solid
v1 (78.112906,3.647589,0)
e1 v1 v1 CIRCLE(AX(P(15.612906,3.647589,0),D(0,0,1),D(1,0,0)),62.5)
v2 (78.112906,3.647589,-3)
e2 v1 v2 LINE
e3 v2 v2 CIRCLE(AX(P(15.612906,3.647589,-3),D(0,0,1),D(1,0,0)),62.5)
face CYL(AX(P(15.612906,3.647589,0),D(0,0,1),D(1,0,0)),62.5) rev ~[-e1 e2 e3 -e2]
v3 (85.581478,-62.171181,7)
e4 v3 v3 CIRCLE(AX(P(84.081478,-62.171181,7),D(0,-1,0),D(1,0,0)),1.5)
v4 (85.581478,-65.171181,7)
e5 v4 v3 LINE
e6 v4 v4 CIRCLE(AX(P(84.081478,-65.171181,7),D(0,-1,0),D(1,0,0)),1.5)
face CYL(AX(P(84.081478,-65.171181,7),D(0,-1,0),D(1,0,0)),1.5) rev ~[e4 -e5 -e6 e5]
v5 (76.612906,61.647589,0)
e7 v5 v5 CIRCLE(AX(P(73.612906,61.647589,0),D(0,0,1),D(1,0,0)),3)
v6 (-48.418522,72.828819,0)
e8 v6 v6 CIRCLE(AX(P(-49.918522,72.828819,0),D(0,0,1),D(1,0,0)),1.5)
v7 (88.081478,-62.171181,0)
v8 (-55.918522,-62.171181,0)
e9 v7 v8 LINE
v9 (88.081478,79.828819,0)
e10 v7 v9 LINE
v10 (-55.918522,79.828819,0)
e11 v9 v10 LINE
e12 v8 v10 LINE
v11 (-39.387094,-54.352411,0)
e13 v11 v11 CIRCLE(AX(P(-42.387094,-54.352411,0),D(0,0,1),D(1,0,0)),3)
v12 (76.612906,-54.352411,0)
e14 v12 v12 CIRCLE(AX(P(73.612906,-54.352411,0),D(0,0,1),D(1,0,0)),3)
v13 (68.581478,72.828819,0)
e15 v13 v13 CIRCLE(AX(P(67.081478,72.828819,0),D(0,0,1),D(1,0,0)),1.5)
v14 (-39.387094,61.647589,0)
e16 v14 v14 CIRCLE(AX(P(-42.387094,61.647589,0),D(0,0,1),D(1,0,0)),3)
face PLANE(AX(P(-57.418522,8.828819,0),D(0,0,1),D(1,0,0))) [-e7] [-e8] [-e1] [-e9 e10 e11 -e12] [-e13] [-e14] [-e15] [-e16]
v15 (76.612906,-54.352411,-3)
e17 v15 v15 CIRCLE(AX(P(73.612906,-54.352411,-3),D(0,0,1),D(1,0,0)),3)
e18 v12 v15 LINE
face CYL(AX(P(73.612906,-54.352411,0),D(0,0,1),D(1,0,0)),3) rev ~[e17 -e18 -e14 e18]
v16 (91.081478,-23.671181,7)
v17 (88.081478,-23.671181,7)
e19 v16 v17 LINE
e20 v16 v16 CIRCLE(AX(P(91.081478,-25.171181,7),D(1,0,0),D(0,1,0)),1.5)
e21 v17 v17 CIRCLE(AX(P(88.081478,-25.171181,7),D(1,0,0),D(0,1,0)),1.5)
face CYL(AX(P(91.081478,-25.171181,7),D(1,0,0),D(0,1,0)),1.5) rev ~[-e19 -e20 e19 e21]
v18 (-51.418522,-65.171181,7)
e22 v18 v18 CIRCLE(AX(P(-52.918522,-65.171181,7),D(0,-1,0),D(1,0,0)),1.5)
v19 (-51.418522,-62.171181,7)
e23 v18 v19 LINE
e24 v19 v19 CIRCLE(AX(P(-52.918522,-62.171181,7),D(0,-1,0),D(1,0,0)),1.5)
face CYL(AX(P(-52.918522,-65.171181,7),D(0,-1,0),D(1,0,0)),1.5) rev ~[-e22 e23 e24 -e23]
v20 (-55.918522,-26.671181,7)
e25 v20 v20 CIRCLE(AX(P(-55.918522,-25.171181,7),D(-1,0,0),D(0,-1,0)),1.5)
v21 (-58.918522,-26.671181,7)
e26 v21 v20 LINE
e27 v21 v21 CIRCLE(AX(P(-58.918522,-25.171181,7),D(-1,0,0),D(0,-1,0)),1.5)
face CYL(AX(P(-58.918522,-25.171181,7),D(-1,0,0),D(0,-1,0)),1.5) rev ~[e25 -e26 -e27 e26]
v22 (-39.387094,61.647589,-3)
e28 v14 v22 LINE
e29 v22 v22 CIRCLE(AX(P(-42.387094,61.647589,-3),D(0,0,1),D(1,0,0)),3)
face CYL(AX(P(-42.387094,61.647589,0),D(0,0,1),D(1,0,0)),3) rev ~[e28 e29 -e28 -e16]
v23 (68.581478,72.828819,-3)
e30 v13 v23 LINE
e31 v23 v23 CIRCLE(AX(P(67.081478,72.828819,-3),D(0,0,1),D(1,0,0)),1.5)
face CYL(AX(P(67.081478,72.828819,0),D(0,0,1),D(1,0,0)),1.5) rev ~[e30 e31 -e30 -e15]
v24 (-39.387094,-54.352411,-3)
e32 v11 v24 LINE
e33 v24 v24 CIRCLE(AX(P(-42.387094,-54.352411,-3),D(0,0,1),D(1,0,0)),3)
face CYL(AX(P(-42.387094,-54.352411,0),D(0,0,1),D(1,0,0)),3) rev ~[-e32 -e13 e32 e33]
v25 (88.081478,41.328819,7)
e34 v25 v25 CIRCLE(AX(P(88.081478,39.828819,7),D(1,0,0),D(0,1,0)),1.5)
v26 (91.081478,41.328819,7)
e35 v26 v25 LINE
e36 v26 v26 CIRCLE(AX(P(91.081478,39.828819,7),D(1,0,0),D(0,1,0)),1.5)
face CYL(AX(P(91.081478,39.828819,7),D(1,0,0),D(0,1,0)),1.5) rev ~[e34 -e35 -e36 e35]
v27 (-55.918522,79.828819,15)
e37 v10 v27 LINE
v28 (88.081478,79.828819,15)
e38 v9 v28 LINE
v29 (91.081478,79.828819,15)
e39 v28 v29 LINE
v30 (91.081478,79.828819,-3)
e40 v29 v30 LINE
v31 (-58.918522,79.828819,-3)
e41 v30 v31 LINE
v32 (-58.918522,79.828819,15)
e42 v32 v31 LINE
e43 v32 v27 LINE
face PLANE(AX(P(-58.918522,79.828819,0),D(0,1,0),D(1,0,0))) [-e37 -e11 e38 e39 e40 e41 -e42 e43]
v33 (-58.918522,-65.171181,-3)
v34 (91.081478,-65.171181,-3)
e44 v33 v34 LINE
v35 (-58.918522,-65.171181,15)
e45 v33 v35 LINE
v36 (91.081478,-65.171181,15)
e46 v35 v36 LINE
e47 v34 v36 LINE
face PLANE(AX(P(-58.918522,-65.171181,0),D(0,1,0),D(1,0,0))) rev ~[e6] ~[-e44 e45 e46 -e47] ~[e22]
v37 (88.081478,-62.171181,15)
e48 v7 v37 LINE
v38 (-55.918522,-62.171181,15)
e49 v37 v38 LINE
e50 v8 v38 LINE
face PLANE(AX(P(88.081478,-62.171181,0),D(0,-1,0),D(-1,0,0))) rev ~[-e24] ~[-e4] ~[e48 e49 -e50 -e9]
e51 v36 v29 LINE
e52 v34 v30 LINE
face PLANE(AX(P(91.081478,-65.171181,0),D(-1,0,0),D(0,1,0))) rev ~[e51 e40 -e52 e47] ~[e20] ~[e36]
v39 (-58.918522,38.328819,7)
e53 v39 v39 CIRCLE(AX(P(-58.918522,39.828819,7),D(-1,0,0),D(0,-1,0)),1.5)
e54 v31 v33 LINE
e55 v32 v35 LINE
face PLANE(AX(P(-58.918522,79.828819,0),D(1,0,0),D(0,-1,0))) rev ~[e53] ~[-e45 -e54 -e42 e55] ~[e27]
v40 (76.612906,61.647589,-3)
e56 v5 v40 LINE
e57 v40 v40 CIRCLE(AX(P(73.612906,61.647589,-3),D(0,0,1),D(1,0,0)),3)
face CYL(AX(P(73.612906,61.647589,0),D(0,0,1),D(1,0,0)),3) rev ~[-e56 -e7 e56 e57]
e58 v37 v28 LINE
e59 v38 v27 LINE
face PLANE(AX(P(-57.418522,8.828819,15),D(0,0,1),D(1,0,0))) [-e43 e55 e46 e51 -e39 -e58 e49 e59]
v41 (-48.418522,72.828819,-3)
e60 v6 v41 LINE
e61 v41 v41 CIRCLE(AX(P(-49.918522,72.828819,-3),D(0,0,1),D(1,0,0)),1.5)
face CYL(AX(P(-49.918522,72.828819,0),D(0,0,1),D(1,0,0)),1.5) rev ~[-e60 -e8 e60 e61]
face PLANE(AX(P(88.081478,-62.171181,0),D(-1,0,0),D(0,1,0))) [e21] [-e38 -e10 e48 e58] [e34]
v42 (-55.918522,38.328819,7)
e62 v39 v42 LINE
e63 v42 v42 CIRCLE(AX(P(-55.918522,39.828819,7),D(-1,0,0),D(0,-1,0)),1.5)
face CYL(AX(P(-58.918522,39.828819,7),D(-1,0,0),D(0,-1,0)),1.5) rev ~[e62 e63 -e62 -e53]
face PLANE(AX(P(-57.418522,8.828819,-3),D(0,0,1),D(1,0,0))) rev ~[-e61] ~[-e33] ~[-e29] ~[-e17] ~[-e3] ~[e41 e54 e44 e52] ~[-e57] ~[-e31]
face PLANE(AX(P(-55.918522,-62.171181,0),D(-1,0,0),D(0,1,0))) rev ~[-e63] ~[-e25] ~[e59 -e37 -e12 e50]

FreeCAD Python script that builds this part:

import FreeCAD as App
import Part
import Sketcher
from FreeCAD import Vector
Q = App.Units.Quantity

doc = App.newDocument("Part")
body = doc.addObject("PartDesign::Body", "Body")

# Sketch on XY plane
sketch1 = body.newObject("Sketcher::SketchObject", "Sketch")
sketch1.AttachmentSupport = (doc.getObject("XY_Plane"), [""])
sketch1.MapMode = "FlatFace"
sketch1.addGeometry(Part.LineSegment(Vector(-58.9, 79.8, 0), Vector(-58.9, -65.2, 0)), False)
sketch1.addGeometry(Part.LineSegment(Vector(-58.9, -65.2, 0), Vector(91.1, -65.2, 0)), False)
sketch1.addGeometry(Part.LineSegment(Vector(91.1, -65.2, 0), Vector(91.1, 79.8, 0)), False)
sketch1.addGeometry(Part.LineSegment(Vector(91.1, 79.8, 0), Vector(-58.9, 79.8, 0)), False)
sketch1.addGeometry(Part.Circle(Vector(-42.4, -54.4, 0), Vector(0, 0, 1), 3), False)
sketch1.addGeometry(Part.Circle(Vector(73.6, -54.4, 0), Vector(0, 0, 1), 3), False)
sketch1.addGeometry(Part.Circle(Vector(15.6, 3.6, 0), Vector(0, 0, 1), 62.5), False)
sketch1.addGeometry(Part.Circle(Vector(-42.4, 61.6, 0), Vector(0, 0, 1), 3), False)
sketch1.addGeometry(Part.Circle(Vector(-49.9, 72.8, 0), Vector(0, 0, 1), 1.5), False)
sketch1.addGeometry(Part.Circle(Vector(73.6, 61.6, 0), Vector(0, 0, 1), 3), False)
sketch1.addGeometry(Part.Circle(Vector(67.1, 72.8, 0), Vector(0, 0, 1), 1.5), False)
sketch1.addConstraint(Sketcher.Constraint("Coincident", 0, 2, 1, 1))
sketch1.addConstraint(Sketcher.Constraint("Coincident", 1, 2, 2, 1))
sketch1.addConstraint(Sketcher.Constraint("Coincident", 2, 2, 3, 1))
sketch1.addConstraint(Sketcher.Constraint("Coincident", 3, 2, 0, 1))
sketch1.addConstraint(Sketcher.Constraint("Vertical", 0))
sketch1.addConstraint(Sketcher.Constraint("Horizontal", 1))
sketch1.addConstraint(Sketcher.Constraint("Vertical", 2))
sketch1.addConstraint(Sketcher.Constraint("Horizontal", 3))
sketch1.addConstraint(Sketcher.Constraint("Equal", 4, 5))
sketch1.addConstraint(Sketcher.Constraint("Equal", 5, 7))
sketch1.addConstraint(Sketcher.Constraint("Equal", 7, 9))
sketch1.addConstraint(Sketcher.Constraint("Equal", 8, 10))
sketch1.addConstraint(Sketcher.Constraint("Horizontal", 4, 3, 5, 3))
sketch1.addConstraint(Sketcher.Constraint("Horizontal", 7, 3, 9, 3))
sketch1.addConstraint(Sketcher.Constraint("Horizontal", 8, 3, 10, 3))
sketch1.addConstraint(Sketcher.Constraint("Vertical", 4, 3, 7, 3))
sketch1.addConstraint(Sketcher.Constraint("Vertical", 5, 3, 9, 3))
sketch1.addConstraint(Sketcher.Constraint("Diameter", 4, Q("6 mm")))
sketch1.addConstraint(Sketcher.Constraint("Diameter", 6, Q("125 mm")))
sketch1.addConstraint(Sketcher.Constraint("Diameter", 8, Q("3 mm")))
sketch1.addConstraint(Sketcher.Constraint("DistanceX", 1, 1, 1, 2, Q("150 mm")))
sketch1.addConstraint(Sketcher.Constraint("DistanceY", 0, 2, 0, 1, Q("145 mm")))
sketch1.addConstraint(Sketcher.Constraint("DistanceX", 4, 3, 5, 3, Q("116 mm")))
sketch1.addConstraint(Sketcher.Constraint("DistanceX", 4, 3, 6, 3, Q("58 mm")))
sketch1.addConstraint(Sketcher.Constraint("DistanceY", 4, 3, 6, 3, Q("58 mm")))
sketch1.addConstraint(Sketcher.Constraint("DistanceY", 6, 3, 7, 3, Q("58 mm")))
sketch1.addConstraint(Sketcher.Constraint("DistanceX", 8, 3, 10, 3, Q("117 mm")))
sketch1.addConstraint(Sketcher.Constraint("DistanceX", 0, 2, 8, 3, Q("9 mm")))
sketch1.addConstraint(Sketcher.Constraint("DistanceY", 0, 2, 8, 3, Q("138 mm")))
sketch1.addConstraint(Sketcher.Constraint("DistanceY", 4, 3, -1, 1, Q("54.352411 mm")))
sketch1.addConstraint(Sketcher.Constraint("DistanceY", -1, 1, 8, 3, Q("72.828819 mm")))
sketch1.addConstraint(Sketcher.Constraint("DistanceX", 8, 3, 7, 3, Q("7.531428 mm")))
sketch1.addConstraint(Sketcher.Constraint("DistanceX", 4, 3, -1, 1, Q("42.387094 mm")))
pad1 = body.newObject("PartDesign::Pad", "Pad")
pad1.Profile = sketch1
pad1.Length = 3
pad1.Reversed = True

# Sketch on XY plane
sketch2 = body.newObject("Sketcher::SketchObject", "Sketch001")
sketch2.AttachmentSupport = (doc.getObject("XY_Plane"), [""])
sketch2.MapMode = "FlatFace"
sketch2.addGeometry(Part.LineSegment(Vector(-58.9, 79.8, 0), Vector(-58.9, -65.2, 0)), False)
sketch2.addGeometry(Part.LineSegment(Vector(-58.9, -65.2, 0), Vector(91.1, -65.2, 0)), False)
sketch2.addGeometry(Part.LineSegment(Vector(91.1, -65.2, 0), Vector(91.1, 79.8, 0)), False)
sketch2.addGeometry(Part.LineSegment(Vector(91.1, 79.8, 0), Vector(88.1, 79.8, 0)), False)
sketch2.addGeometry(Part.LineSegment(Vector(88.1, 79.8, 0), Vector(88.1, -62.2, 0)), False)
sketch2.addGeometry(Part.LineSegment(Vector(88.1, -62.2, 0), Vector(-55.9, -62.2, 0)), False)
sketch2.addGeometry(Part.LineSegment(Vector(-55.9, -62.2, 0), Vector(-55.9, 79.8, 0)), False)
sketch2.addGeometry(Part.LineSegment(Vector(-55.9, 79.8, 0), Vector(-58.9, 79.8, 0)), False)
sketch2.addConstraint(Sketcher.Constraint("Coincident", 0, 2, 1, 1))
sketch2.addConstraint(Sketcher.Constraint("Coincident", 1, 2, 2, 1))
sketch2.addConstraint(Sketcher.Constraint("Coincident", 2, 2, 3, 1))
sketch2.addConstraint(Sketcher.Constraint("Coincident", 3, 2, 4, 1))
sketch2.addConstraint(Sketcher.Constraint("Coincident", 4, 2, 5, 1))
sketch2.addConstraint(Sketcher.Constraint("Coincident", 5, 2, 6, 1))
sketch2.addConstraint(Sketcher.Constraint("Coincident", 6, 2, 7, 1))
sketch2.addConstraint(Sketcher.Constraint("Coincident", 7, 2, 0, 1))
sketch2.addConstraint(Sketcher.Constraint("Vertical", 0))
sketch2.addConstraint(Sketcher.Constraint("Horizontal", 1))
sketch2.addConstraint(Sketcher.Constraint("Vertical", 2))
sketch2.addConstraint(Sketcher.Constraint("Horizontal", 3))
sketch2.addConstraint(Sketcher.Constraint("Vertical", 4))
sketch2.addConstraint(Sketcher.Constraint("Horizontal", 5))
sketch2.addConstraint(Sketcher.Constraint("Vertical", 6))
sketch2.addConstraint(Sketcher.Constraint("Horizontal", 7))
sketch2.addConstraint(Sketcher.Constraint("Horizontal", 3, 2, 6, 2))
sketch2.addConstraint(Sketcher.Constraint("Equal", 3, 7))
sketch2.addConstraint(Sketcher.Constraint("DistanceX", 1, 1, 1, 2, Q("150 mm")))
sketch2.addConstraint(Sketcher.Constraint("DistanceX", 3, 2, 3, 1, Q("3 mm")))
sketch2.addConstraint(Sketcher.Constraint("DistanceY", 0, 2, 0, 1, Q("145 mm")))
sketch2.addConstraint(Sketcher.Constraint("DistanceY", 4, 2, 4, 1, Q("142 mm")))
sketch2.addConstraint(Sketcher.Constraint("DistanceY", 0, 2, -1, 1, Q("65.171181 mm")))
sketch2.addConstraint(Sketcher.Constraint("DistanceX", 0, 2, -1, 1, Q("58.918522 mm")))
pad2 = body.newObject("PartDesign::Pad", "Pad001")
pad2.Profile = sketch2
pad2.Length = 15

# Sketch on YZ plane
sketch3 = body.newObject("Sketcher::SketchObject", "Sketch002")
sketch3.AttachmentSupport = (doc.getObject("YZ_Plane"), [""])
sketch3.MapMode = "FlatFace"
sketch3.AttachmentOffset = App.Placement(Vector(0, 0, -58.918522), App.Rotation())
sketch3.addGeometry(Part.Circle(Vector(-25.2, 7, 0), Vector(0, 0, 1), 1.5), False)
sketch3.addGeometry(Part.Circle(Vector(39.8, 7, 0), Vector(0, 0, 1), 1.5), False)
sketch3.addConstraint(Sketcher.Constraint("Equal", 0, 1))
sketch3.addConstraint(Sketcher.Constraint("Horizontal", 0, 3, 1, 3))
sketch3.addConstraint(Sketcher.Constraint("Diameter", 0, Q("3 mm")))
sketch3.addConstraint(Sketcher.Constraint("DistanceY", -1, 1, 0, 3, Q("7 mm")))
sketch3.addConstraint(Sketcher.Constraint("DistanceX", 0, 3, 1, 3, Q("65 mm")))
sketch3.addConstraint(Sketcher.Constraint("DistanceX", 0, 3, -1, 1, Q("25.171181 mm")))
pocket1 = body.newObject("PartDesign::Pocket", "Pocket")
pocket1.Profile = sketch3
pocket1.Length = 3
pocket1.Reversed = True

# Sketch on XZ plane
sketch4 = body.newObject("Sketcher::SketchObject", "Sketch003")
sketch4.AttachmentSupport = (doc.getObject("XZ_Plane"), [""])
sketch4.MapMode = "FlatFace"
sketch4.AttachmentOffset = App.Placement(Vector(0, 0, 65.171181), App.Rotation())
sketch4.addGeometry(Part.Circle(Vector(-52.9, 7, 0), Vector(0, 0, 1), 1.5), False)
sketch4.addGeometry(Part.Circle(Vector(84.1, 7, 0), Vector(0, 0, 1), 1.5), False)
sketch4.addConstraint(Sketcher.Constraint("Equal", 0, 1))
sketch4.addConstraint(Sketcher.Constraint("Horizontal", 0, 3, 1, 3))
sketch4.addConstraint(Sketcher.Constraint("Diameter", 0, Q("3 mm")))
sketch4.addConstraint(Sketcher.Constraint("DistanceY", -1, 1, 0, 3, Q("7 mm")))
sketch4.addConstraint(Sketcher.Constraint("DistanceX", 0, 3, 1, 3, Q("137 mm")))
sketch4.addConstraint(Sketcher.Constraint("DistanceX", 0, 3, -1, 1, Q("52.918522 mm")))
pocket2 = body.newObject("PartDesign::Pocket", "Pocket001")
pocket2.Profile = sketch4
pocket2.Length = 25

# Sketch on YZ plane
sketch5 = body.newObject("Sketcher::SketchObject", "Sketch004")
sketch5.AttachmentSupport = (doc.getObject("YZ_Plane"), [""])
sketch5.MapMode = "FlatFace"
sketch5.AttachmentOffset = App.Placement(Vector(0, 0, 91.081478), App.Rotation())
sketch5.addGeometry(Part.Circle(Vector(-25.2, 7, 0), Vector(0, 0, 1), 1.5), False)
sketch5.addGeometry(Part.Circle(Vector(39.8, 7, 0), Vector(0, 0, 1), 1.5), False)
sketch5.addConstraint(Sketcher.Constraint("Equal", 0, 1))
sketch5.addConstraint(Sketcher.Constraint("Horizontal", 0, 3, 1, 3))
sketch5.addConstraint(Sketcher.Constraint("Diameter", 0, Q("3 mm")))
sketch5.addConstraint(Sketcher.Constraint("DistanceY", -1, 1, 0, 3, Q("7 mm")))
sketch5.addConstraint(Sketcher.Constraint("DistanceX", 0, 3, 1, 3, Q("65 mm")))
sketch5.addConstraint(Sketcher.Constraint("DistanceX", 0, 3, -1, 1, Q("25.171181 mm")))
pocket3 = body.newObject("PartDesign::Pocket", "Pocket002")
pocket3.Profile = sketch5
pocket3.Length = 25

doc.recompute()
